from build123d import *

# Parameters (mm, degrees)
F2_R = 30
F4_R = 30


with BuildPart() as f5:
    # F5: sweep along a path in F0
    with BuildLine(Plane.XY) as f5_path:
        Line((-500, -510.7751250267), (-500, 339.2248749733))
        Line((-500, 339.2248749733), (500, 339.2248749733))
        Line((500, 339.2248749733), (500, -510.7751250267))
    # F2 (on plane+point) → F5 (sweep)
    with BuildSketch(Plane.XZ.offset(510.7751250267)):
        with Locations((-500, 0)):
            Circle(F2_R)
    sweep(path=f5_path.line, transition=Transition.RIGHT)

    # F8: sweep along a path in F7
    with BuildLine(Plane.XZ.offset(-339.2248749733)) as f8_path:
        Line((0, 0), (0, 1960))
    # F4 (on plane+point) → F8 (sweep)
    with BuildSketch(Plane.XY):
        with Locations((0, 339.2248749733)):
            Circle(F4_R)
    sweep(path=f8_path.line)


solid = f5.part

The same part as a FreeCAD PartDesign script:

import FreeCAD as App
import Part
import Sketcher
Q = App.Units.Quantity

doc = App.newDocument("Part")
body = doc.addObject("PartDesign::Body", "Body")

# Sketch on XZ plane
sketch1 = doc.addObject("Sketcher::SketchObject", "Sketch")
body.addObject(sketch1)
sketch1.AttachmentSupport = (doc.XZ_Plane, [""])
sketch1.MapMode = "FlatFace"
sketch1.AttachmentOffset = App.Placement(App.Vector(0, 0, 510.775125), App.Rotation())
sketch1.addGeometry(Part.Circle(App.Vector(-500, 0, 0), App.Vector(0, 0, 1), 30), False)
sketch1.addConstraint(Sketcher.Constraint("PointOnObject", 0, 3, -1))
sketch1.addConstraint(Sketcher.Constraint("Diameter", 0, Q("60 mm")))
sketch1.addConstraint(Sketcher.Constraint("DistanceX", 0, 3, -1, 1, Q("500 mm")))

# Sketch on XY plane
sketch2 = doc.addObject("Sketcher::SketchObject", "Sketch001")
body.addObject(sketch2)
sketch2.AttachmentSupport = (doc.XY_Plane, [""])
sketch2.MapMode = "FlatFace"
sketch2.addGeometry(Part.LineSegment(App.Vector(-500, -511, 0), App.Vector(-500, 339, 0)), False)
sketch2.addGeometry(Part.LineSegment(App.Vector(-500, 339, 0), App.Vector(500, 339, 0)), False)
sketch2.addGeometry(Part.LineSegment(App.Vector(500, 339, 0), App.Vector(500, -511, 0)), False)
sketch2.addConstraint(Sketcher.Constraint("Coincident", 0, 2, 1, 1))
sketch2.addConstraint(Sketcher.Constraint("Coincident", 1, 2, 2, 1))
sketch2.addConstraint(Sketcher.Constraint("Vertical", 0))
sketch2.addConstraint(Sketcher.Constraint("Horizontal", 1))
sketch2.addConstraint(Sketcher.Constraint("Vertical", 2))
sketch2.addConstraint(Sketcher.Constraint("Symmetric", 0, 1, 2, 2, -2))
sketch2.addConstraint(Sketcher.Constraint("DistanceX", 1, 1, 1, 2, Q("1000 mm")))
sketch2.addConstraint(Sketcher.Constraint("DistanceY", 0, 1, 0, 2, Q("850 mm")))
sketch2.addConstraint(Sketcher.Constraint("DistanceY", 0, 1, -1, 1, Q("510.775125 mm")))
doc.recompute()

additivepipe = doc.addObject("PartDesign::AdditivePipe", "AdditivePipe")
body.addObject(additivepipe)
additivepipe.Profile = sketch1
additivepipe.Spine = (sketch2, ["Edge1", "Edge2", "Edge3"])
additivepipe.Transition = "Right corner"

# Sketch on XY plane
sketch3 = doc.addObject("Sketcher::SketchObject", "Sketch002")
body.addObject(sketch3)
sketch3.AttachmentSupport = (doc.XY_Plane, [""])
sketch3.MapMode = "FlatFace"
sketch3.addGeometry(Part.Circle(App.Vector(0, 339, 0), App.Vector(0, 0, 1), 30), False)
sketch3.addConstraint(Sketcher.Constraint("PointOnObject", 0, 3, -2))
sketch3.addConstraint(Sketcher.Constraint("Diameter", 0, Q("60 mm")))
sketch3.addConstraint(Sketcher.Constraint("DistanceY", -1, 1, 0, 3, Q("339.224875 mm")))

# Sketch on XZ plane
sketch4 = doc.addObject("Sketcher::SketchObject", "Sketch003")
body.addObject(sketch4)
sketch4.AttachmentSupport = (doc.XZ_Plane, [""])
sketch4.MapMode = "FlatFace"
sketch4.AttachmentOffset = App.Placement(App.Vector(0, 0, -339.224875), App.Rotation())
sketch4.addGeometry(Part.LineSegment(App.Vector(0, 0, 0), App.Vector(0, 1960, 0)), False)
sketch4.addConstraint(Sketcher.Constraint("Vertical", 0))
sketch4.addConstraint(Sketcher.Constraint("Coincident", 0, 1, -1, 1))
sketch4.addConstraint(Sketcher.Constraint("DistanceY", 0, 1, 0, 2, Q("1960 mm")))
doc.recompute()

additivepipe2 = doc.addObject("PartDesign::AdditivePipe", "AdditivePipe001")
body.addObject(additivepipe2)
additivepipe2.Profile = sketch3
additivepipe2.Spine = (sketch4, ["Edge1"])

doc.recompute()
